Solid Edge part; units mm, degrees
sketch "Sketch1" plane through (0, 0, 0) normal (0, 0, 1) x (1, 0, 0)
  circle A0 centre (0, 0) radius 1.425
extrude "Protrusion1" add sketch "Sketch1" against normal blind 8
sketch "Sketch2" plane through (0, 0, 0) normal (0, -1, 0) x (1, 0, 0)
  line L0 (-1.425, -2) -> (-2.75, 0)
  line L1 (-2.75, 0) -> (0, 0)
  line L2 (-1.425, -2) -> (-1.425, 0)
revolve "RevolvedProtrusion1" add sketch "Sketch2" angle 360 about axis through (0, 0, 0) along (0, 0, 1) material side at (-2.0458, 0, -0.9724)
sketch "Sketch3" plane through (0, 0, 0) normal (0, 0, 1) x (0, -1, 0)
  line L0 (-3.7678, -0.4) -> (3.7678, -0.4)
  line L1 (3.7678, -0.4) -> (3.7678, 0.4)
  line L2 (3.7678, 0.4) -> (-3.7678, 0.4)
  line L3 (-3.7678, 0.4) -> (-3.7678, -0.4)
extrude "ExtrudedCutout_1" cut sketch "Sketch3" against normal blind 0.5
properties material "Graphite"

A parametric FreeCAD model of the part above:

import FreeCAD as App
import Part
import Sketcher
from FreeCAD import Vector

doc = App.newDocument("Part")
body = doc.addObject("PartDesign::Body", "Body")

# Sketch on XY plane
sketch1 = body.newObject("Sketcher::SketchObject", "Sketch")
sketch1.AttachmentSupport = (doc.getObject("XY_Plane"), [""])
sketch1.MapMode = "FlatFace"
sketch1.addGeometry(Part.Circle(Vector(0, 0, 0), Vector(0, 0, 1), 1.4), False)
sketch1.addConstraint(Sketcher.Constraint("Coincident", 0, 3, -1, 1))
sketch1.addConstraint(Sketcher.Constraint("Diameter", 0, 2.85))
pad1 = body.newObject("PartDesign::Pad", "Pad")
pad1.Profile = sketch1
pad1.Length = 8
pad1.Reversed = True

# Sketch on XZ plane
sketch2 = body.newObject("Sketcher::SketchObject", "Sketch001")
sketch2.AttachmentSupport = (doc.getObject("XZ_Plane"), [""])
sketch2.MapMode = "FlatFace"
sketch2.addGeometry(Part.LineSegment(Vector(-2.8, 0, 0), Vector(-1.4, -2, 0)), False)
sketch2.addGeometry(Part.LineSegment(Vector(-1.4, -2, 0), Vector(-1.4, 0, 0)), False)
sketch2.addGeometry(Part.LineSegment(Vector(-1.4, 0, 0), Vector(-2.8, 0, 0)), False)
sketch2.addConstraint(Sketcher.Constraint("Coincident", 0, 2, 1, 1))
sketch2.addConstraint(Sketcher.Constraint("Coincident", 1, 2, 2, 1))
sketch2.addConstraint(Sketcher.Constraint("Coincident", 2, 2, 0, 1))
sketch2.addConstraint(Sketcher.Constraint("Vertical", 1))
sketch2.addConstraint(Sketcher.Constraint("Horizontal", 2))
sketch2.addConstraint(Sketcher.Constraint("PointOnObject", 1, 2, -1))
sketch2.addConstraint(Sketcher.Constraint("DistanceY", 1, 1, 1, 2, 2.0))
sketch2.addConstraint(Sketcher.Constraint("DistanceX", 2, 2, 2, 1, 1.325))
sketch2.addConstraint(Sketcher.Constraint("DistanceX", 2, 2, -1, 1, 2.75))
revolution = body.newObject("PartDesign::Revolution", "Revolution")
revolution.Profile = sketch2
revolution.ReferenceAxis = (sketch2, ["V_Axis"])
revolution.Angle = 360

# Sketch on XY plane
sketch3 = body.newObject("Sketcher::SketchObject", "Sketch002")
sketch3.AttachmentSupport = (doc.getObject("XY_Plane"), [""])
sketch3.MapMode = "FlatFace"
sketch3.addGeometry(Part.LineSegment(Vector(0.4, 3.8, 0), Vector(-0.4, 3.8, 0)), False)
sketch3.addGeometry(Part.LineSegment(Vector(-0.4, 3.8, 0), Vector(-0.4, -3.8, 0)), False)
sketch3.addGeometry(Part.LineSegment(Vector(-0.4, -3.8, 0), Vector(0.4, -3.8, 0)), False)
sketch3.addGeometry(Part.LineSegment(Vector(0.4, -3.8, 0), Vector(0.4, 3.8, 0)), False)
sketch3.addConstraint(Sketcher.Constraint("Coincident", 0, 2, 1, 1))
sketch3.addConstraint(Sketcher.Constraint("Coincident", 1, 2, 2, 1))
sketch3.addConstraint(Sketcher.Constraint("Coincident", 2, 2, 3, 1))
sketch3.addConstraint(Sketcher.Constraint("Coincident", 3, 2, 0, 1))
sketch3.addConstraint(Sketcher.Constraint("Horizontal", 0))
sketch3.addConstraint(Sketcher.Constraint("Vertical", 1))
sketch3.addConstraint(Sketcher.Constraint("Horizontal", 2))
sketch3.addConstraint(Sketcher.Constraint("Vertical", 3))
sketch3.addConstraint(Sketcher.Constraint("Symmetric", 0, 2, 2, 2, -1, 1))
sketch3.addConstraint(Sketcher.Constraint("DistanceX", 0, 2, 0, 1, 0.8))
sketch3.addConstraint(Sketcher.Constraint("DistanceY", 1, 2, 1, 1, 7.5356))
pocket1 = body.newObject("PartDesign::Pocket", "Pocket")
pocket1.Profile = sketch3
pocket1.Length = 0.5

doc.recompute()
